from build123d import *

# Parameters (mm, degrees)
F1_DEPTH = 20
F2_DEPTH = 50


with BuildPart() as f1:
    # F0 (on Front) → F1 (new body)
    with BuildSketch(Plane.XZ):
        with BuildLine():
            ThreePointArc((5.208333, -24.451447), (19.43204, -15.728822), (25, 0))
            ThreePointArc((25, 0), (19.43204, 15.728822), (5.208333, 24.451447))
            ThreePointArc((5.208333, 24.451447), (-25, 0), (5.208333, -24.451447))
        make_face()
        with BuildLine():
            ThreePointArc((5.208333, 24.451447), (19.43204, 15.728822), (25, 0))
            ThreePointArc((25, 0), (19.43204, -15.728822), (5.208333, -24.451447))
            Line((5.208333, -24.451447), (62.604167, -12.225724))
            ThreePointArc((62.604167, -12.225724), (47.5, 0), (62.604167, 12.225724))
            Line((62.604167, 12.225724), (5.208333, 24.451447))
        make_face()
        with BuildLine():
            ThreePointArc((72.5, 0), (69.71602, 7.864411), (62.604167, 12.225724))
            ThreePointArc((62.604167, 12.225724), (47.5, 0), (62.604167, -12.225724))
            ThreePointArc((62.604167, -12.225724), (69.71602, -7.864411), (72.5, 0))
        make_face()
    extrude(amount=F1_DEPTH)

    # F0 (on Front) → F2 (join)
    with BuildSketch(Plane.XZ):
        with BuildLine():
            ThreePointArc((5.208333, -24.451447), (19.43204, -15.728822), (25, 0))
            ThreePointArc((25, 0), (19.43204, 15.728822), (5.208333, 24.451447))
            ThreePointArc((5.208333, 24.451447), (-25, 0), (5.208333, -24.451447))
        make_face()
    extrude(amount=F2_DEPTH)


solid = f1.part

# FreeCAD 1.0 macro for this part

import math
import FreeCAD as App
import Part
import Sketcher
from FreeCAD import Vector

doc = App.newDocument("Part")
body = doc.addObject("PartDesign::Body", "Body")

# Sketch on XZ plane
sketch1 = doc.addObject("Sketcher::SketchObject", "Sketch")
body.addObject(sketch1)
sketch1.AttachmentSupport = (doc.XZ_Plane, [""])
sketch1.MapMode = "FlatFace"
sketch1.addGeometry([
    Part.ArcOfCircle(Part.Circle(Vector(0, 0, 0), Vector(0, 0, 1), 25), math.radians(78), math.radians(282)),  # 0
    Part.LineSegment(Vector(5, -24, 0), Vector(63, -12, 0)),  # 1
    Part.ArcOfCircle(Part.Circle(Vector(60, 0, 0), Vector(0, 0, 1), 13), math.radians(-78), math.radians(0)),  # 2
    Part.ArcOfCircle(Part.Circle(Vector(60, 0, 0), Vector(0, 0, 1), 13), math.radians(0), math.radians(78)),  # 3
    Part.LineSegment(Vector(63, 12, 0), Vector(5, 24, 0)),  # 4
], False)
sketch1.addConstraint([
    Sketcher.Constraint("Tangent", 0, 2, 1, 1),
    Sketcher.Constraint("Tangent", 1, 2, 2, 1),
    Sketcher.Constraint("Tangent", 2, 2, 3, 1),
    Sketcher.Constraint("Tangent", 3, 2, 4, 1),
    Sketcher.Constraint("Tangent", 4, 2, 0, 1),
    Sketcher.Constraint("Coincident", 0, 3, -1, 1),
    Sketcher.Constraint("Equal", 2, 3),
    Sketcher.Constraint("PointOnObject", 2, 3, -1),
    Sketcher.Constraint("PointOnObject", 2, 2, -1),
    Sketcher.Constraint("Radius", 0, 25.0),
    Sketcher.Constraint("Radius", 2, 12.5),
    Sketcher.Constraint("DistanceX", -1, 1, 2, 3, 60.0),
])
pad1 = doc.addObject("PartDesign::Pad", "Pad")
body.addObject(pad1)
pad1.Profile = sketch1
pad1.Length = 20

# Sketch on XZ plane
sketch2 = doc.addObject("Sketcher::SketchObject", "Sketch001")
body.addObject(sketch2)
sketch2.AttachmentSupport = (doc.XZ_Plane, [""])
sketch2.MapMode = "FlatFace"
sketch2.addGeometry([
    Part.ArcOfCircle(Part.Circle(Vector(0, 0, 0), Vector(0, 0, 1), 25), math.radians(-78), math.radians(0)),
    Part.ArcOfCircle(Part.Circle(Vector(0, 0, 0), Vector(0, 0, 1), 25), math.radians(0), math.radians(78)),
    Part.ArcOfCircle(Part.Circle(Vector(0, 0, 0), Vector(0, 0, 1), 25), math.radians(78), math.radians(282)),
], False)
sketch2.addConstraint([
    Sketcher.Constraint("Tangent", 0, 2, 1, 1),
    Sketcher.Constraint("Tangent", 1, 2, 2, 1),
    Sketcher.Constraint("Tangent", 2, 2, 0, 1),
    Sketcher.Constraint("Coincident", 0, 3, -1, 1),
    Sketcher.Constraint("PointOnObject", 0, 2, -1),
    Sketcher.Constraint("Vertical", 1, 2, 2, 2),
    Sketcher.Constraint("Radius", 0, 24.999998),
    Sketcher.Constraint("DistanceX", 1, 3, 1, 2, 5.208331),
])
pad2 = doc.addObject("PartDesign::Pad", "Pad001")
body.addObject(pad2)
pad2.Profile = sketch2
pad2.Length = 50

doc.recompute()
